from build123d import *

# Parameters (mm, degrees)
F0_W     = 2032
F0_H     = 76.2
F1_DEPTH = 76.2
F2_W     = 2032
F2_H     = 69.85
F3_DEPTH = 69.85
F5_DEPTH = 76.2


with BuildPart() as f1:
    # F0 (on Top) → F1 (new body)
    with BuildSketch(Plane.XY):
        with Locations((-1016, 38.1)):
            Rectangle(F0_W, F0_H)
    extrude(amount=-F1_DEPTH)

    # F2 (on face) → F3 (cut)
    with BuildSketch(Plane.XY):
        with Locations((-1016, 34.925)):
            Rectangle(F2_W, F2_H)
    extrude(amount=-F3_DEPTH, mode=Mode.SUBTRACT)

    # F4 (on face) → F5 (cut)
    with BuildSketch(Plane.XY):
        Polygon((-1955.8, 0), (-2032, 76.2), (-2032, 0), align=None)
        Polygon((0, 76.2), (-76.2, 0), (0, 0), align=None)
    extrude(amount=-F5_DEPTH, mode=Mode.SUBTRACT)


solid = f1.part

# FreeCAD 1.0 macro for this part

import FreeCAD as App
import Part
import Sketcher
Q = App.Units.Quantity


def add_polygon(sketch, points):
    """Adds a closed chain of lines whose ends are joined by coincident constraints."""
    first, n = sketch.GeometryCount, len(points)
    for a, b in zip(points, points[1:] + points[:1]):
        sketch.addGeometry(Part.LineSegment(App.Vector(*a, 0), App.Vector(*b, 0)), False)
    for i in range(n):
        sketch.addConstraint(Sketcher.Constraint("Coincident", first + i, 2, first + (i + 1) % n, 1))

doc = App.newDocument("Part")
body = doc.addObject("PartDesign::Body", "Body")

sketch1 = body.newObject("Sketcher::SketchObject", "Sketch")
sketch1.AttachmentSupport = (doc.getObject("XY_Plane"), [""])
sketch1.MapMode = "FlatFace"
add_polygon(sketch1, [(-2032, 76), (-2032, 0), (0, 0), (0, 76)])
sketch1.addConstraint(Sketcher.Constraint("Vertical", 0))
sketch1.addConstraint(Sketcher.Constraint("Horizontal", 1))
sketch1.addConstraint(Sketcher.Constraint("Vertical", 2))
sketch1.addConstraint(Sketcher.Constraint("Horizontal", 3))
sketch1.addConstraint(Sketcher.Constraint("Coincident", 1, 2, -1, 1))
sketch1.addConstraint(Sketcher.Constraint("DistanceX", 1, 1, 1, 2, Q("80 in")))
sketch1.addConstraint(Sketcher.Constraint("DistanceY", 0, 2, 0, 1, Q("3 in")))
pad1 = body.newObject("PartDesign::Pad", "Pad")
pad1.Profile = sketch1
pad1.Length = Q("3 in")
pad1.Reversed = True

sketch2 = body.newObject("Sketcher::SketchObject", "Sketch001")
sketch2.AttachmentSupport = (doc.getObject("XY_Plane"), [""])
sketch2.MapMode = "FlatFace"
add_polygon(sketch2, [(-2032, 70), (-2032, 0), (0, 0), (0, 70)])
sketch2.addConstraint(Sketcher.Constraint("Vertical", 0))
sketch2.addConstraint(Sketcher.Constraint("Horizontal", 1))
sketch2.addConstraint(Sketcher.Constraint("Vertical", 2))
sketch2.addConstraint(Sketcher.Constraint("Horizontal", 3))
sketch2.addConstraint(Sketcher.Constraint("Coincident", 1, 2, -1, 1))
sketch2.addConstraint(Sketcher.Constraint("DistanceX", 1, 1, 1, 2, Q("80 in")))
sketch2.addConstraint(Sketcher.Constraint("DistanceY", 0, 2, 0, 1, Q("2.75 in")))
pocket1 = body.newObject("PartDesign::Pocket", "Pocket")
pocket1.Profile = sketch2
pocket1.Length = Q("2.75 in")

sketch3 = body.newObject("Sketcher::SketchObject", "Sketch002")
sketch3.AttachmentSupport = (doc.getObject("XY_Plane"), [""])
sketch3.MapMode = "FlatFace"
add_polygon(sketch3, [(-1956, 0), (-2032, 76), (-2032, 0)])
add_polygon(sketch3, [(0, 76), (-76, 0), (0, 0)])
sketch3.addConstraint(Sketcher.Constraint("Vertical", 1))
sketch3.addConstraint(Sketcher.Constraint("Horizontal", 2))
sketch3.addConstraint(Sketcher.Constraint("Horizontal", 4))
sketch3.addConstraint(Sketcher.Constraint("Vertical", 5))
sketch3.addConstraint(Sketcher.Constraint("Coincident", 4, 2, -1, 1))
sketch3.addConstraint(Sketcher.Constraint("PointOnObject", 1, 2, -1))
sketch3.addConstraint(Sketcher.Constraint("Perpendicular", 0, 3))
sketch3.addConstraint(Sketcher.Constraint("Horizontal", 0, 2, 5, 2))
sketch3.addConstraint(Sketcher.Constraint("Equal", 2, 4))
sketch3.addConstraint(Sketcher.Constraint("DistanceX", 2, 1, 2, 2, Q("3 in")))
sketch3.addConstraint(Sketcher.Constraint("DistanceX", 0, 2, -1, 1, Q("80 in")))
pocket2 = body.newObject("PartDesign::Pocket", "Pocket001")
pocket2.Profile = sketch3
pocket2.Length = Q("3 in")

doc.recompute()
